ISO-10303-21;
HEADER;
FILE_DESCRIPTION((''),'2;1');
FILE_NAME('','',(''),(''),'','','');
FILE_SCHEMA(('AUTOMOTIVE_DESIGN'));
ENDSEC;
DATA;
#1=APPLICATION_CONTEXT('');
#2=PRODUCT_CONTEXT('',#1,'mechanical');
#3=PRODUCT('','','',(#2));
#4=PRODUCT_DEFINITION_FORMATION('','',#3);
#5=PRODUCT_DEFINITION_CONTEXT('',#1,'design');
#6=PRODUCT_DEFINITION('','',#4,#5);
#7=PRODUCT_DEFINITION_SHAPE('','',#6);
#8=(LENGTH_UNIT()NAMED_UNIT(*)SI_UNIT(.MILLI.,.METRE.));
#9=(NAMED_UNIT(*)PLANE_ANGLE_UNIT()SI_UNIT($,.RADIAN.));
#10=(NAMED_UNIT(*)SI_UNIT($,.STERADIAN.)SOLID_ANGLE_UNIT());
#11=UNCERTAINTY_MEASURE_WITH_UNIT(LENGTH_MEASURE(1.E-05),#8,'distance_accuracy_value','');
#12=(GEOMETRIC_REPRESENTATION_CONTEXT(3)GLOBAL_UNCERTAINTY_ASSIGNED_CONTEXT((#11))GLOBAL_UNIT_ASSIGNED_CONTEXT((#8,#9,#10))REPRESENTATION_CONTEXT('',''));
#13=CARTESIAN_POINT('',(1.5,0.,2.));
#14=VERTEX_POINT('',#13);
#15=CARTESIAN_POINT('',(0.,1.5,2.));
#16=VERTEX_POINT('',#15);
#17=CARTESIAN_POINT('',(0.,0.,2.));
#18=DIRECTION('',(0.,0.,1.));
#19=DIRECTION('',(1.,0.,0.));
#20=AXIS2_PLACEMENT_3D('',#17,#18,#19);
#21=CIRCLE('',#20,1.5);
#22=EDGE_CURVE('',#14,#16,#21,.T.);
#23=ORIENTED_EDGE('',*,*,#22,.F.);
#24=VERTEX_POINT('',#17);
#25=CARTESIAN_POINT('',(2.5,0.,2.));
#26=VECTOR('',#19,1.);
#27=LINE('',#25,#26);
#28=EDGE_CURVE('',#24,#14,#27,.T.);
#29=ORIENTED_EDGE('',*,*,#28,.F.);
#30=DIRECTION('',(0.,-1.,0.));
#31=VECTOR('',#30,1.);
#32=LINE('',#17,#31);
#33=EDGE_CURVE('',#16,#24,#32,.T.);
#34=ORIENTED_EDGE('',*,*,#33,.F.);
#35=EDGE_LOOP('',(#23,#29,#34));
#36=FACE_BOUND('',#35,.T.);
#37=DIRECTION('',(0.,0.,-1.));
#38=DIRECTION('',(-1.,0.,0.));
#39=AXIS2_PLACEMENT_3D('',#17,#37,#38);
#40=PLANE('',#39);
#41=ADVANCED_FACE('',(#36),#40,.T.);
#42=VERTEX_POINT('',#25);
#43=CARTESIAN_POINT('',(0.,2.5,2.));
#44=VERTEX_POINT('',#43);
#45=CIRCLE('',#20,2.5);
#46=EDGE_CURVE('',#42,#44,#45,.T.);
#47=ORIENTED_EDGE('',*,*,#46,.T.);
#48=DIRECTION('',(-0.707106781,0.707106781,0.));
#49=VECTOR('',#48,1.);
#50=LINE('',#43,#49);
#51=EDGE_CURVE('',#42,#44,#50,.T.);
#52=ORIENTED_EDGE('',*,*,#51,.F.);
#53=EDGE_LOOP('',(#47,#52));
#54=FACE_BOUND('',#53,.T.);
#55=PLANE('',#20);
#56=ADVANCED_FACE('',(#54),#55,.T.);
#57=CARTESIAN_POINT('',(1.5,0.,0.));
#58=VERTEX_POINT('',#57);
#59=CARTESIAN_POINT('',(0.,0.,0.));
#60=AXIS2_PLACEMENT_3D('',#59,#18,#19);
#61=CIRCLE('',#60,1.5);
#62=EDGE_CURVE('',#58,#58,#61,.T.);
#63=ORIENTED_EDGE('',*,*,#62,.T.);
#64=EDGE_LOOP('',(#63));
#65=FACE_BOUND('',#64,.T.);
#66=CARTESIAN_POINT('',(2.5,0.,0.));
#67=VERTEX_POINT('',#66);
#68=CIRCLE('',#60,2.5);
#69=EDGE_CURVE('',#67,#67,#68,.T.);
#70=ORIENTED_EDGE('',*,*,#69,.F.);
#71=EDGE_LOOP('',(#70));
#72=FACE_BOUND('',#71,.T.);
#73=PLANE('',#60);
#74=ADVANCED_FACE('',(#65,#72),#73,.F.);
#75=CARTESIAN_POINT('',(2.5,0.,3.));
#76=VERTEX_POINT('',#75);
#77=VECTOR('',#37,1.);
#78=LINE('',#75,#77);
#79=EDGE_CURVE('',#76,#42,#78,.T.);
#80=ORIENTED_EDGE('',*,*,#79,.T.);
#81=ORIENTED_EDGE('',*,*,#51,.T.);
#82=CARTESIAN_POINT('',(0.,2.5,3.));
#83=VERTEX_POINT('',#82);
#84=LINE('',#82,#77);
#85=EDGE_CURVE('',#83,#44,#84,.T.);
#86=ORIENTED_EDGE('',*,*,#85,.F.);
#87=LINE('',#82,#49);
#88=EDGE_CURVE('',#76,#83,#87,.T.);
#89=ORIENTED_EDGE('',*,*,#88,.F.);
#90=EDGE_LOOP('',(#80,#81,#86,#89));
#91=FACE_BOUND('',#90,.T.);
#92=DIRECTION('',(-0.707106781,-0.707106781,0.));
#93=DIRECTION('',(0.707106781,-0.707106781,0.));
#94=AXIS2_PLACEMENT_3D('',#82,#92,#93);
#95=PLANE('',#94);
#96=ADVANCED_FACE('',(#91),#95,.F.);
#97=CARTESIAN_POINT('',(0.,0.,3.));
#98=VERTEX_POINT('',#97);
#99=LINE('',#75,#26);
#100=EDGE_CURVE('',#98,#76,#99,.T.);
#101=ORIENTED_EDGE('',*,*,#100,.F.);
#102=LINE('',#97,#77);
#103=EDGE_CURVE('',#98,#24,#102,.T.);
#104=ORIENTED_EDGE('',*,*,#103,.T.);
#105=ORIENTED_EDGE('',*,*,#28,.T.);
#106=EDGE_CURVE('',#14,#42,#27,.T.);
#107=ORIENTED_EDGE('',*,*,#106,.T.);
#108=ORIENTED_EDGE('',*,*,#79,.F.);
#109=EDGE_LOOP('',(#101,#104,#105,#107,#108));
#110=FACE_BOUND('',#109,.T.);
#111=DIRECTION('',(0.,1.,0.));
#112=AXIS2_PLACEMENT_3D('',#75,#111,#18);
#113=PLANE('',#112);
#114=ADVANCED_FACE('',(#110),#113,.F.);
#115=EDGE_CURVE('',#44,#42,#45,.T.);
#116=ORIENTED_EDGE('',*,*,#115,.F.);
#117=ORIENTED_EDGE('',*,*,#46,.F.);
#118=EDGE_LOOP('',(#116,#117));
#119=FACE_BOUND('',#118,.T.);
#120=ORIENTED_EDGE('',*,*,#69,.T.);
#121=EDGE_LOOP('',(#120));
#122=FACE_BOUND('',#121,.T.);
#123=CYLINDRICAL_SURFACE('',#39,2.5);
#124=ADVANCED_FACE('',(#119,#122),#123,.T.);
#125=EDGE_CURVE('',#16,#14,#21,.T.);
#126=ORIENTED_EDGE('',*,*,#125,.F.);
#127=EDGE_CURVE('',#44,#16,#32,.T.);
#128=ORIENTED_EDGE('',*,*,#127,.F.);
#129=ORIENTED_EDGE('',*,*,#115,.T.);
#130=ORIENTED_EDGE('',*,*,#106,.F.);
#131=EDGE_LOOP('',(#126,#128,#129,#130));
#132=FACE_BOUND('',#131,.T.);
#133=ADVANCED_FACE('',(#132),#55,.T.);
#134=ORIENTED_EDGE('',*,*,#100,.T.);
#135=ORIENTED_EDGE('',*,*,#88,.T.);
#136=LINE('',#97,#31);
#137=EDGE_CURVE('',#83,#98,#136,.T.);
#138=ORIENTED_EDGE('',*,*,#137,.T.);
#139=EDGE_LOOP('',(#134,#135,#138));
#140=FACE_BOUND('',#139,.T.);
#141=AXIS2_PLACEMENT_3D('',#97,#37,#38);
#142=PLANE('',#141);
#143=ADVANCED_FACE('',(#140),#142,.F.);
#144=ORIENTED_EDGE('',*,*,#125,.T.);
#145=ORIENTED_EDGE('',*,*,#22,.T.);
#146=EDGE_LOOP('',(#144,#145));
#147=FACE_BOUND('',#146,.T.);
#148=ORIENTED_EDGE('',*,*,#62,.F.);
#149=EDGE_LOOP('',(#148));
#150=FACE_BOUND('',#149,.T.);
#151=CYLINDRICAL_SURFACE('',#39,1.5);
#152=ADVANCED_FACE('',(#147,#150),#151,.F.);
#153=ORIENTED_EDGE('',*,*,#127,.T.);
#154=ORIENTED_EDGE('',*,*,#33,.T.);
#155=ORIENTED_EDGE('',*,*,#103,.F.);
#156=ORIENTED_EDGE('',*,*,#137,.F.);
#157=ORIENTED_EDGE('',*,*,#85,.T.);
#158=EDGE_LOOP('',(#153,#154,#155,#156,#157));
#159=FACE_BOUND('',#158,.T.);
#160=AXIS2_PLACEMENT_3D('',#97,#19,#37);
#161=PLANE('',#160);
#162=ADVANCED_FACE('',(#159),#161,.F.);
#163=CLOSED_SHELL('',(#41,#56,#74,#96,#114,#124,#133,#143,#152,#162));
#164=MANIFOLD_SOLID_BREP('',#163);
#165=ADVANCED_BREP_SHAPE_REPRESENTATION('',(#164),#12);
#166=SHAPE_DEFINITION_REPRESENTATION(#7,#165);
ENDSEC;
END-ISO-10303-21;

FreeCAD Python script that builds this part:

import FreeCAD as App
import Part
import Sketcher

V = App.Vector
Q = App.Units.Quantity


def add_polygon(sketch, points):
    """Adds a closed chain of lines whose ends are joined by coincident constraints."""
    first, n = sketch.GeometryCount, len(points)
    for a, b in zip(points, points[1:] + points[:1]):
        sketch.addGeometry(Part.LineSegment(App.Vector(*a, 0), App.Vector(*b, 0)), False)
    for i in range(n):
        sketch.addConstraint(Sketcher.Constraint("Coincident", first + i, 2, first + (i + 1) % n, 1))

doc = App.newDocument("Part")
body = doc.addObject("PartDesign::Body", "Body")

# Sketch on XY plane
sketch1 = body.newObject("Sketcher::SketchObject", "Sketch")
sketch1.AttachmentSupport = (doc.getObject("XY_Plane"), [""])
sketch1.MapMode = "FlatFace"
sketch1.addGeometry([
    Part.Circle(V(0, 0, 0), V(0, 0, 1), 2.5),
    Part.Circle(V(0, 0, 0), V(0, 0, 1), 1.5),
], False)
sketch1.addConstraint([
    Sketcher.Constraint("Coincident", 0, 3, -1, 1),
    Sketcher.Constraint("Coincident", 1, 3, -1, 1),
    Sketcher.Constraint("Diameter", 0, Q("5 mm")),
    Sketcher.Constraint("Diameter", 1, Q("3 mm")),
])
pad1 = body.newObject("PartDesign::Pad", "Pad")
pad1.Profile = sketch1
pad1.Length = 2

# Sketch on XY plane
sketch2 = body.newObject("Sketcher::SketchObject", "Sketch001")
sketch2.AttachmentSupport = (doc.getObject("XY_Plane"), [""])
sketch2.MapMode = "FlatFace"
sketch2.AttachmentOffset = App.Placement(V(0, 0, 2), App.Rotation())
add_polygon(sketch2, [(0, 2.5), (0, 0), (2.5, 0)])  # lines 0-2
sketch2.addConstraint([
    Sketcher.Constraint("Vertical", 0),
    Sketcher.Constraint("Horizontal", 1),
    Sketcher.Constraint("Coincident", 0, 2, -1, 1),
    Sketcher.Constraint("Equal", 1, 0),
    Sketcher.Constraint("DistanceX", 1, 1, 1, 2, Q("2.5 mm")),
])
pad2 = body.newObject("PartDesign::Pad", "Pad001")
pad2.Profile = sketch2
pad2.Length = 1

doc.recompute()
